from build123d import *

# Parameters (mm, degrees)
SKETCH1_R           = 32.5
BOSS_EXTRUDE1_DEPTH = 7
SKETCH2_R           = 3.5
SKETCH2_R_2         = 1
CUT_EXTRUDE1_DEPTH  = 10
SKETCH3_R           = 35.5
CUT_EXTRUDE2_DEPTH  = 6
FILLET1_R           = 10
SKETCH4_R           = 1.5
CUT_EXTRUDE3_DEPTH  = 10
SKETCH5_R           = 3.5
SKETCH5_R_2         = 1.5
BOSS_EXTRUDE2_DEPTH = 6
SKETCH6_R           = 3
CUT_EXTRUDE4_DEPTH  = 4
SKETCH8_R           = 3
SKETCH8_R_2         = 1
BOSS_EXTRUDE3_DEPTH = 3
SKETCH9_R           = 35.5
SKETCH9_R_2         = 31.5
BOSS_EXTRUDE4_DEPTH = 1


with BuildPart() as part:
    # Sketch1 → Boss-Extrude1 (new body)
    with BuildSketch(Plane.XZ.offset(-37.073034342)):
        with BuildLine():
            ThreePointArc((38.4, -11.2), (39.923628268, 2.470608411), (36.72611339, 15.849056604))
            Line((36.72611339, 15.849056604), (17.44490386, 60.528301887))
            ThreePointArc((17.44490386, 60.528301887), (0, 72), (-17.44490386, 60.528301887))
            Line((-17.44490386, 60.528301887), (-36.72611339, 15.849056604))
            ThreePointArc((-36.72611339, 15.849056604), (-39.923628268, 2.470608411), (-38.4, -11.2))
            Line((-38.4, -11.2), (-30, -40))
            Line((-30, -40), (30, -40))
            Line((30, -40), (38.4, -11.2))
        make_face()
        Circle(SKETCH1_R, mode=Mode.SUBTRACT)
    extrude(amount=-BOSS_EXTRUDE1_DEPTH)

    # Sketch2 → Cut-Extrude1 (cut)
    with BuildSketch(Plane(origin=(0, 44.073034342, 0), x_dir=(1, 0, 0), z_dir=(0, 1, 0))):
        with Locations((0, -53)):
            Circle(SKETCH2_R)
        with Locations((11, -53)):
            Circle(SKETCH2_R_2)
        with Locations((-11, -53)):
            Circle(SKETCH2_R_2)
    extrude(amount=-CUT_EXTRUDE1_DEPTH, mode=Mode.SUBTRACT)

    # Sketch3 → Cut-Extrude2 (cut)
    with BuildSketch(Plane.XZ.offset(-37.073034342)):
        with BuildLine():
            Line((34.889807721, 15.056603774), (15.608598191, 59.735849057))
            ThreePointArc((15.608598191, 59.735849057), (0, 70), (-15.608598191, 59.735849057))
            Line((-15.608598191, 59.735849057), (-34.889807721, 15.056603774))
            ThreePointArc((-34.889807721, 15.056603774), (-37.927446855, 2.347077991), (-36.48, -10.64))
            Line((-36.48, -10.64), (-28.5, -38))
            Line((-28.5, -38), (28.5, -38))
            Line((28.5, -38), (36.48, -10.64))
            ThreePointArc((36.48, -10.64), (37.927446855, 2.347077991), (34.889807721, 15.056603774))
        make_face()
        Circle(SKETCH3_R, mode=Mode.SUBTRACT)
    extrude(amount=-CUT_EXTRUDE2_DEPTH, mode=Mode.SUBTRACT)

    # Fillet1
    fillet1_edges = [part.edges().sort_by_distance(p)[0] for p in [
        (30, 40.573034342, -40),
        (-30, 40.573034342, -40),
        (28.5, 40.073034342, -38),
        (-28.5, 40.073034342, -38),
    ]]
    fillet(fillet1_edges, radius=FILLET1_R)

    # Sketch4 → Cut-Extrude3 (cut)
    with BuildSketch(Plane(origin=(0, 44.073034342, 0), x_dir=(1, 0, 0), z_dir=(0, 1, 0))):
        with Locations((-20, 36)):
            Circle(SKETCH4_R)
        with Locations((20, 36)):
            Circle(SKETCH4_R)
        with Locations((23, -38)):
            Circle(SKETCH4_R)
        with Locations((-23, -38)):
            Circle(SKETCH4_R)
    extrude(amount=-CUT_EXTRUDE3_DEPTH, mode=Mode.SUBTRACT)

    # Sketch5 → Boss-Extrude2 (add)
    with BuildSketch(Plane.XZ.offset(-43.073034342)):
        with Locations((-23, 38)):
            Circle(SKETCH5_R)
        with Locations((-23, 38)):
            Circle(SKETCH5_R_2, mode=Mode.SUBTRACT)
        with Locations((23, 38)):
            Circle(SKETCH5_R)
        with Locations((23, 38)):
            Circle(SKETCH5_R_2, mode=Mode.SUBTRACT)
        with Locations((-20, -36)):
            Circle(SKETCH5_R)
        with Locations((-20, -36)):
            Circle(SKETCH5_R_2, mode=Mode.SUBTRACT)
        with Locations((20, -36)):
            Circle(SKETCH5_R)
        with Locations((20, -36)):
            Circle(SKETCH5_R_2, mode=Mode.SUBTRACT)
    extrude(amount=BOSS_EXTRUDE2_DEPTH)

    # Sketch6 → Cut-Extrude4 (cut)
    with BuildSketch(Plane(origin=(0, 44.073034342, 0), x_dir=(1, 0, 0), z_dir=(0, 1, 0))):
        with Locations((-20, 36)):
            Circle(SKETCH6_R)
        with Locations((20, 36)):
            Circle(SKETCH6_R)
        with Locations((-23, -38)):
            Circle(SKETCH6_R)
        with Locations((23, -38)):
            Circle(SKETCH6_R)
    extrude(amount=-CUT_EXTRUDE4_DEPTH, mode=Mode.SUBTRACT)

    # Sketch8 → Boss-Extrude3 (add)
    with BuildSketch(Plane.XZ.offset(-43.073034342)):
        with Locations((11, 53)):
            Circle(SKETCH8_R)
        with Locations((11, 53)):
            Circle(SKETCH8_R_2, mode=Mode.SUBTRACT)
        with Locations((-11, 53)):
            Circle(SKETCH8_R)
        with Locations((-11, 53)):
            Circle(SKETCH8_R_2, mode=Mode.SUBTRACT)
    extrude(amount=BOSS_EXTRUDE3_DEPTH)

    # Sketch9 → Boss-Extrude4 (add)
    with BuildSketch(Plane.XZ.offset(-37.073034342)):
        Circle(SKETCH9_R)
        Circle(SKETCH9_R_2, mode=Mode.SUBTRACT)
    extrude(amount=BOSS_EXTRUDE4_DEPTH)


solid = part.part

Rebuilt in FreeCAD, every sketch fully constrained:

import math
import FreeCAD as App
import Part
import Sketcher
Q = App.Units.Quantity


def edges_at(feature, points):
    """Names of the edges that pass closest to the given points."""
    edges = feature.Shape.Edges
    near = lambda p: min(range(len(edges)), key=lambda i: edges[i].distToShape(Part.Vertex(*p))[0])
    return sorted({f"Edge{near(p) + 1}" for p in points})

doc = App.newDocument("Part")
params = doc.addObject("Spreadsheet::Sheet", "Params")
for row, (alias, value) in enumerate([
    ("sketch1_diameter", "65 mm"),
    ("sketch1_radius", "40 mm"),
    ("sketch1_radius2", "19 mm"),
    ("sketch1_width", "60 mm"),
    ("sketch1_length", "30 mm"),
    ("pad1_length", "7 mm"),
    ("sketch2_diameter", "7 mm"),
    ("sketch2_diameter2", "2 mm"),
    ("pocket1_length", "10 mm"),
    ("sketch3_diameter", "71 mm"),
    ("sketch3_radius", "17 mm"),
    ("sketch3_radius2", "38 mm"),
    ("sketch3_width", "57 mm"),
    ("pocket2_length", "6 mm"),
    ("fillet_radius", "10 mm"),
    ("sketch4_diameter", "3 mm"),
    ("pocket3_length", "10 mm"),
    ("sketch5_diameter", "7 mm"),
    ("sketch5_diameter2", "3 mm"),
    ("pad2_length", "6 mm"),
    ("sketch6_diameter", "6 mm"),
    ("pocket4_length", "4 mm"),
    ("sketch7_diameter", "6 mm"),
    ("sketch7_diameter2", "2 mm"),
    ("pad3_length", "3 mm"),
    ("sketch8_diameter", "71 mm"),
    ("sketch8_diameter2", "63 mm"),
    ("pad4_length", "1 mm"),
], start=1):
    params.set(f"A{row}", alias)
    params.set(f"B{row}", "=" + value)
    params.setAlias(f"B{row}", alias)

body = doc.addObject("PartDesign::Body", "Body")

# Sketch on XZ plane
sketch1 = body.newObject("Sketcher::SketchObject", "Sketch")
sketch1.AttachmentSupport = (doc.getObject("XZ_Plane"), [""])
sketch1.MapMode = "FlatFace"
sketch1.AttachmentOffset = App.Placement(App.Vector(0, 0, -37.073034), App.Rotation())
sketch1.addGeometry([
    Part.ArcOfCircle(Part.Circle(App.Vector(0, 0, 0), App.Vector(0, 0, 1), 40), math.radians(-16), math.radians(23)),  # 0
    Part.LineSegment(App.Vector(37, 16, 0), App.Vector(17, 61, 0)),  # 1
    Part.ArcOfCircle(Part.Circle(App.Vector(0, 53, 0), App.Vector(0, 0, 1), 19), math.radians(23), math.radians(157)),  # 2
    Part.LineSegment(App.Vector(-17, 61, 0), App.Vector(-37, 16, 0)),  # 3
    Part.ArcOfCircle(Part.Circle(App.Vector(0, 0, 0), App.Vector(0, 0, 1), 40), math.radians(157), math.radians(196)),  # 4
    Part.LineSegment(App.Vector(-38, -11, 0), App.Vector(-30, -40, 0)),  # 5
    Part.LineSegment(App.Vector(-30, -40, 0), App.Vector(30, -40, 0)),  # 6
    Part.LineSegment(App.Vector(30, -40, 0), App.Vector(38, -11, 0)),  # 7
    Part.Circle(App.Vector(0, 0, 0), App.Vector(0, 0, 1), 32),  # 8
], False)
sketch1.addConstraint([
    Sketcher.Constraint("Tangent", 0, 2, 1, 1),
    Sketcher.Constraint("Tangent", 1, 2, 2, 1),
    Sketcher.Constraint("Tangent", 2, 2, 3, 1),
    Sketcher.Constraint("Tangent", 3, 2, 4, 1),
    Sketcher.Constraint("Tangent", 4, 2, 5, 1),
    Sketcher.Constraint("Coincident", 5, 2, 6, 1),
    Sketcher.Constraint("Coincident", 6, 2, 7, 1),
    Sketcher.Constraint("Tangent", 7, 2, 0, 1),
    Sketcher.Constraint("Horizontal", 6),
    Sketcher.Constraint("Coincident", 0, 3, -1, 1),
    Sketcher.Constraint("Coincident", 4, 3, -1, 1),
    Sketcher.Constraint("Coincident", 8, 3, -1, 1),
    Sketcher.Constraint("Equal", 0, 4),
    Sketcher.Constraint("PointOnObject", 2, 3, -2),
    Sketcher.Constraint("Horizontal", 4, 2, 7, 2),
    Sketcher.Constraint("Diameter", 8, Q("65 mm")),
    Sketcher.Constraint("Radius", 0, Q("40 mm")),
    Sketcher.Constraint("Radius", 2, Q("19 mm")),
    Sketcher.Constraint("DistanceX", 6, 1, 6, 2, Q("60 mm")),
    Sketcher.Constraint("Distance", 5, Q("30 mm")),
    Sketcher.Constraint("DistanceY", -1, 1, 2, 3, Q("53 mm")),
])
sketch1.setExpression("Constraints[15]", "Params.sketch1_diameter")
sketch1.setExpression("Constraints[16]", "Params.sketch1_radius")
sketch1.setExpression("Constraints[17]", "Params.sketch1_radius2")
sketch1.setExpression("Constraints[18]", "Params.sketch1_width")
sketch1.setExpression("Constraints[19]", "Params.sketch1_length")
pad1 = body.newObject("PartDesign::Pad", "Pad")
pad1.Profile = sketch1
pad1.setExpression("Length", "Params.pad1_length")
pad1.Reversed = True

# Sketch on XZ plane
sketch2 = body.newObject("Sketcher::SketchObject", "Sketch001")
sketch2.AttachmentSupport = (doc.getObject("XZ_Plane"), [""])
sketch2.MapMode = "FlatFace"
sketch2.AttachmentOffset = App.Placement(App.Vector(0, 0, -44.073034), App.Rotation())
sketch2.addGeometry([
    Part.Circle(App.Vector(0, 53, 0), App.Vector(0, 0, 1), 3.5),
    Part.Circle(App.Vector(11, 53, 0), App.Vector(0, 0, 1), 1),
    Part.Circle(App.Vector(-11, 53, 0), App.Vector(0, 0, 1), 1),
], False)
sketch2.addConstraint([
    Sketcher.Constraint("Equal", 1, 2),
    Sketcher.Constraint("Symmetric", 1, 3, 2, 3, -2),
    Sketcher.Constraint("PointOnObject", 0, 3, -2),
    Sketcher.Constraint("Horizontal", 0, 3, 1, 3),
    Sketcher.Constraint("Diameter", 0, Q("7 mm")),
    Sketcher.Constraint("Diameter", 1, Q("2 mm")),
    Sketcher.Constraint("DistanceY", -1, 1, 0, 3, Q("53 mm")),
    Sketcher.Constraint("DistanceX", -1, 1, 1, 3, Q("11 mm")),
])
sketch2.setExpression("Constraints[4]", "Params.sketch2_diameter")
sketch2.setExpression("Constraints[5]", "Params.sketch2_diameter2")
pocket1 = body.newObject("PartDesign::Pocket", "Pocket")
pocket1.Profile = sketch2
pocket1.setExpression("Length", "Params.pocket1_length")
pocket1.Reversed = True

# Sketch on XZ plane
sketch3 = body.newObject("Sketcher::SketchObject", "Sketch002")
sketch3.AttachmentSupport = (doc.getObject("XZ_Plane"), [""])
sketch3.MapMode = "FlatFace"
sketch3.AttachmentOffset = App.Placement(App.Vector(0, 0, -37.073034), App.Rotation())
sketch3.addGeometry([
    Part.LineSegment(App.Vector(35, 15, 0), App.Vector(16, 60, 0)),  # 0
    Part.ArcOfCircle(Part.Circle(App.Vector(0, 53, 0), App.Vector(0, 0, 1), 17), math.radians(23), math.radians(157)),  # 1
    Part.LineSegment(App.Vector(-16, 60, 0), App.Vector(-35, 15, 0)),  # 2
    Part.ArcOfCircle(Part.Circle(App.Vector(0, 0, 0), App.Vector(0, 0, 1), 38), math.radians(157), math.radians(196)),  # 3
    Part.LineSegment(App.Vector(-36, -11, 0), App.Vector(-28, -38, 0)),  # 4
    Part.LineSegment(App.Vector(-28, -38, 0), App.Vector(28, -38, 0)),  # 5
    Part.LineSegment(App.Vector(28, -38, 0), App.Vector(36, -11, 0)),  # 6
    Part.ArcOfCircle(Part.Circle(App.Vector(0, 0, 0), App.Vector(0, 0, 1), 38), math.radians(-16), math.radians(23)),  # 7
    Part.Circle(App.Vector(0, 0, 0), App.Vector(0, 0, 1), 36),  # 8
], False)
sketch3.addConstraint([
    Sketcher.Constraint("Tangent", 0, 2, 1, 1),
    Sketcher.Constraint("Tangent", 1, 2, 2, 1),
    Sketcher.Constraint("Tangent", 2, 2, 3, 1),
    Sketcher.Constraint("Tangent", 3, 2, 4, 1),
    Sketcher.Constraint("Coincident", 4, 2, 5, 1),
    Sketcher.Constraint("Coincident", 5, 2, 6, 1),
    Sketcher.Constraint("Tangent", 6, 2, 7, 1),
    Sketcher.Constraint("Tangent", 7, 2, 0, 1),
    Sketcher.Constraint("Horizontal", 5),
    Sketcher.Constraint("Coincident", 3, 3, -1, 1),
    Sketcher.Constraint("Coincident", 7, 3, -1, 1),
    Sketcher.Constraint("Coincident", 8, 3, -1, 1),
    Sketcher.Constraint("Equal", 3, 7),
    Sketcher.Constraint("PointOnObject", 1, 3, -2),
    Sketcher.Constraint("Horizontal", 3, 2, 6, 2),
    Sketcher.Constraint("Diameter", 8, Q("71 mm")),
    Sketcher.Constraint("Radius", 1, Q("17 mm")),
    Sketcher.Constraint("Radius", 3, Q("38 mm")),
    Sketcher.Constraint("DistanceX", 5, 1, 5, 2, Q("57 mm")),
    Sketcher.Constraint("DistanceY", -1, 1, 1, 3, Q("53 mm")),
    Sketcher.Constraint("DistanceY", 4, 2, -1, 1, Q("38 mm")),
])
sketch3.setExpression("Constraints[15]", "Params.sketch3_diameter")
sketch3.setExpression("Constraints[16]", "Params.sketch3_radius")
sketch3.setExpression("Constraints[17]", "Params.sketch3_radius2")
sketch3.setExpression("Constraints[18]", "Params.sketch3_width")
pocket2 = body.newObject("PartDesign::Pocket", "Pocket001")
pocket2.Profile = sketch3
pocket2.setExpression("Length", "Params.pocket2_length")
doc.recompute()

fillet = body.newObject("PartDesign::Fillet", "Fillet")
fillet.Base = (pocket2, edges_at(pocket2, [
    (30, 40.573, -40),
    (-30, 40.573, -40),
    (28.5, 40.073, -38),
    (-28.5, 40.073, -38),
]))
fillet.setExpression("Radius", "Params.fillet_radius")

# Sketch on XZ plane
sketch4 = body.newObject("Sketcher::SketchObject", "Sketch003")
sketch4.AttachmentSupport = (doc.getObject("XZ_Plane"), [""])
sketch4.MapMode = "FlatFace"
sketch4.AttachmentOffset = App.Placement(App.Vector(0, 0, -44.073034), App.Rotation())
sketch4.addGeometry([
    Part.Circle(App.Vector(-20, -36, 0), App.Vector(0, 0, 1), 1.5),
    Part.Circle(App.Vector(20, -36, 0), App.Vector(0, 0, 1), 1.5),
    Part.Circle(App.Vector(23, 38, 0), App.Vector(0, 0, 1), 1.5),
    Part.Circle(App.Vector(-23, 38, 0), App.Vector(0, 0, 1), 1.5),
], False)
sketch4.addConstraint([
    Sketcher.Constraint("Equal", 0, 1),
    Sketcher.Constraint("Equal", 1, 2),
    Sketcher.Constraint("Equal", 2, 3),
    Sketcher.Constraint("Symmetric", 0, 3, 1, 3, -2),
    Sketcher.Constraint("Symmetric", 2, 3, 3, 3, -2),
    Sketcher.Constraint("Diameter", 0, Q("3 mm")),
    Sketcher.Constraint("DistanceX", 0, 3, -1, 1, Q("20 mm")),
    Sketcher.Constraint("DistanceY", 0, 3, -1, 1, Q("36 mm")),
    Sketcher.Constraint("DistanceX", -1, 1, 2, 3, Q("23 mm")),
    Sketcher.Constraint("DistanceY", -1, 1, 2, 3, Q("38 mm")),
])
sketch4.setExpression("Constraints[5]", "Params.sketch4_diameter")
pocket3 = body.newObject("PartDesign::Pocket", "Pocket002")
pocket3.Profile = sketch4
pocket3.setExpression("Length", "Params.pocket3_length")
pocket3.Reversed = True

# Sketch on XZ plane
sketch5 = body.newObject("Sketcher::SketchObject", "Sketch004")
sketch5.AttachmentSupport = (doc.getObject("XZ_Plane"), [""])
sketch5.MapMode = "FlatFace"
sketch5.AttachmentOffset = App.Placement(App.Vector(0, 0, -43.073034), App.Rotation())
sketch5.addGeometry([
    Part.Circle(App.Vector(-23, 38, 0), App.Vector(0, 0, 1), 3.5),  # 0
    Part.Circle(App.Vector(-23, 38, 0), App.Vector(0, 0, 1), 1.5),  # 1
    Part.Circle(App.Vector(23, 38, 0), App.Vector(0, 0, 1), 3.5),  # 2
    Part.Circle(App.Vector(23, 38, 0), App.Vector(0, 0, 1), 1.5),  # 3
    Part.Circle(App.Vector(-20, -36, 0), App.Vector(0, 0, 1), 3.5),  # 4
    Part.Circle(App.Vector(-20, -36, 0), App.Vector(0, 0, 1), 1.5),  # 5
    Part.Circle(App.Vector(20, -36, 0), App.Vector(0, 0, 1), 3.5),  # 6
    Part.Circle(App.Vector(20, -36, 0), App.Vector(0, 0, 1), 1.5),  # 7
], False)
sketch5.addConstraint([
    Sketcher.Constraint("Coincident", 1, 3, 0, 3),
    Sketcher.Constraint("Coincident", 3, 3, 2, 3),
    Sketcher.Constraint("Coincident", 5, 3, 4, 3),
    Sketcher.Constraint("Coincident", 7, 3, 6, 3),
    Sketcher.Constraint("Equal", 0, 2),
    Sketcher.Constraint("Equal", 1, 3),
    Sketcher.Constraint("Equal", 2, 4),
    Sketcher.Constraint("Equal", 3, 5),
    Sketcher.Constraint("Equal", 4, 6),
    Sketcher.Constraint("Equal", 5, 7),
    Sketcher.Constraint("Symmetric", 0, 3, 2, 3, -2),
    Sketcher.Constraint("Symmetric", 4, 3, 6, 3, -2),
    Sketcher.Constraint("Diameter", 0, Q("7 mm")),
    Sketcher.Constraint("Diameter", 1, Q("3 mm")),
    Sketcher.Constraint("DistanceX", 0, 3, -1, 1, Q("23 mm")),
    Sketcher.Constraint("DistanceY", -1, 1, 0, 3, Q("38 mm")),
    Sketcher.Constraint("DistanceX", 4, 3, -1, 1, Q("20 mm")),
    Sketcher.Constraint("DistanceY", 4, 3, -1, 1, Q("36 mm")),
])
sketch5.setExpression("Constraints[12]", "Params.sketch5_diameter")
sketch5.setExpression("Constraints[13]", "Params.sketch5_diameter2")
pad2 = body.newObject("PartDesign::Pad", "Pad001")
pad2.Profile = sketch5
pad2.setExpression("Length", "Params.pad2_length")

# Sketch on XZ plane
sketch6 = body.newObject("Sketcher::SketchObject", "Sketch005")
sketch6.AttachmentSupport = (doc.getObject("XZ_Plane"), [""])
sketch6.MapMode = "FlatFace"
sketch6.AttachmentOffset = App.Placement(App.Vector(0, 0, -44.073034), App.Rotation())
sketch6.addGeometry([
    Part.Circle(App.Vector(-20, -36, 0), App.Vector(0, 0, 1), 3),
    Part.Circle(App.Vector(20, -36, 0), App.Vector(0, 0, 1), 3),
    Part.Circle(App.Vector(-23, 38, 0), App.Vector(0, 0, 1), 3),
    Part.Circle(App.Vector(23, 38, 0), App.Vector(0, 0, 1), 3),
], False)
sketch6.addConstraint([
    Sketcher.Constraint("Equal", 0, 1),
    Sketcher.Constraint("Equal", 1, 2),
    Sketcher.Constraint("Equal", 2, 3),
    Sketcher.Constraint("Symmetric", 0, 3, 1, 3, -2),
    Sketcher.Constraint("Symmetric", 2, 3, 3, 3, -2),
    Sketcher.Constraint("Diameter", 0, Q("6 mm")),
    Sketcher.Constraint("DistanceX", 0, 3, -1, 1, Q("20 mm")),
    Sketcher.Constraint("DistanceY", 0, 3, -1, 1, Q("36 mm")),
    Sketcher.Constraint("DistanceX", 2, 3, -1, 1, Q("23 mm")),
    Sketcher.Constraint("DistanceY", -1, 1, 2, 3, Q("38 mm")),
])
sketch6.setExpression("Constraints[5]", "Params.sketch6_diameter")
pocket4 = body.newObject("PartDesign::Pocket", "Pocket003")
pocket4.Profile = sketch6
pocket4.setExpression("Length", "Params.pocket4_length")
pocket4.Reversed = True

# Sketch on XZ plane
sketch7 = body.newObject("Sketcher::SketchObject", "Sketch006")
sketch7.AttachmentSupport = (doc.getObject("XZ_Plane"), [""])
sketch7.MapMode = "FlatFace"
sketch7.AttachmentOffset = App.Placement(App.Vector(0, 0, -43.073034), App.Rotation())
sketch7.addGeometry([
    Part.Circle(App.Vector(11, 53, 0), App.Vector(0, 0, 1), 3),
    Part.Circle(App.Vector(11, 53, 0), App.Vector(0, 0, 1), 1),
    Part.Circle(App.Vector(-11, 53, 0), App.Vector(0, 0, 1), 3),
    Part.Circle(App.Vector(-11, 53, 0), App.Vector(0, 0, 1), 1),
], False)
sketch7.addConstraint([
    Sketcher.Constraint("Coincident", 1, 3, 0, 3),
    Sketcher.Constraint("Coincident", 3, 3, 2, 3),
    Sketcher.Constraint("Equal", 0, 2),
    Sketcher.Constraint("Equal", 1, 3),
    Sketcher.Constraint("Symmetric", 0, 3, 2, 3, -2),
    Sketcher.Constraint("Diameter", 0, Q("6 mm")),
    Sketcher.Constraint("Diameter", 1, Q("2 mm")),
    Sketcher.Constraint("DistanceX", -1, 1, 0, 3, Q("11 mm")),
    Sketcher.Constraint("DistanceY", -1, 1, 0, 3, Q("53 mm")),
])
sketch7.setExpression("Constraints[5]", "Params.sketch7_diameter")
sketch7.setExpression("Constraints[6]", "Params.sketch7_diameter2")
pad3 = body.newObject("PartDesign::Pad", "Pad002")
pad3.Profile = sketch7
pad3.setExpression("Length", "Params.pad3_length")

# Sketch on XZ plane
sketch8 = body.newObject("Sketcher::SketchObject", "Sketch007")
sketch8.AttachmentSupport = (doc.getObject("XZ_Plane"), [""])
sketch8.MapMode = "FlatFace"
sketch8.AttachmentOffset = App.Placement(App.Vector(0, 0, -37.073034), App.Rotation())
sketch8.addGeometry([
    Part.Circle(App.Vector(0, 0, 0), App.Vector(0, 0, 1), 36),
    Part.Circle(App.Vector(0, 0, 0), App.Vector(0, 0, 1), 32),
], False)
sketch8.addConstraint([
    Sketcher.Constraint("Coincident", 0, 3, -1, 1),
    Sketcher.Constraint("Coincident", 1, 3, -1, 1),
    Sketcher.Constraint("Diameter", 0, Q("71 mm")),
    Sketcher.Constraint("Diameter", 1, Q("63 mm")),
])
sketch8.setExpression("Constraints[2]", "Params.sketch8_diameter")
sketch8.setExpression("Constraints[3]", "Params.sketch8_diameter2")
pad4 = body.newObject("PartDesign::Pad", "Pad003")
pad4.Profile = sketch8
pad4.setExpression("Length", "Params.pad4_length")

doc.recompute()
